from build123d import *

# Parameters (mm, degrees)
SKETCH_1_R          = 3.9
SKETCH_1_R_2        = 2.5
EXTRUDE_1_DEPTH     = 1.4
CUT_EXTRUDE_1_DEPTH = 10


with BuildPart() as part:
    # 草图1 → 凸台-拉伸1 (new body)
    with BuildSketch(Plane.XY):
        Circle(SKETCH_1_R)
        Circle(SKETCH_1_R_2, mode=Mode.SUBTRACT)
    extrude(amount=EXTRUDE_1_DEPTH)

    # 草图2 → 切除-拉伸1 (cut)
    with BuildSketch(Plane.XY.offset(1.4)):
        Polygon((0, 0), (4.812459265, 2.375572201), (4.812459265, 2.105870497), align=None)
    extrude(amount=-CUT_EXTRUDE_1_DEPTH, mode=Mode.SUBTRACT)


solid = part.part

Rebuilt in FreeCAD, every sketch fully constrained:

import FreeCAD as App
import Part
import Sketcher

V = App.Vector
Q = App.Units.Quantity

doc = App.newDocument("Part")
body = doc.addObject("PartDesign::Body", "Body")

sketch1 = body.newObject("Sketcher::SketchObject", "Sketch")
sketch1.AttachmentSupport = (doc.getObject("XY_Plane"), [""])
sketch1.MapMode = "FlatFace"
sketch1.addGeometry([
    Part.Circle(V(0, 0, 0), V(0, 0, 1), 3.9),
    Part.Circle(V(0, 0, 0), V(0, 0, 1), 2.5),
], False)
sketch1.addConstraint([
    Sketcher.Constraint("Coincident", 0, 3, -1, 1),
    Sketcher.Constraint("Coincident", 1, 3, -1, 1),
    Sketcher.Constraint("Diameter", 1, Q("5 mm")),
    Sketcher.Constraint("Diameter", 0, Q("7.8 mm")),
])
pad1 = body.newObject("PartDesign::Pad", "Pad")
pad1.Profile = sketch1
pad1.Length = 1.4

sketch2 = body.newObject("Sketcher::SketchObject", "Sketch001")
sketch2.AttachmentSupport = (doc.getObject("XY_Plane"), [""])
sketch2.MapMode = "FlatFace"
sketch2.AttachmentOffset = App.Placement(V(0, 0, 1.4), App.Rotation())
sketch2.addGeometry([
    Part.LineSegment(V(4.812459, 2.375572, 0), V(0, 0, 0)),
    Part.LineSegment(V(0, 0, 0), V(4.812459, 2.10587, 0)),
    Part.LineSegment(V(4.812459, 2.10587, 0), V(4.812459, 2.375572, 0)),
], False)
sketch2.addConstraint([
    Sketcher.Constraint("Coincident", 0, 2, 1, 1),
    Sketcher.Constraint("Coincident", 1, 2, 2, 1),
    Sketcher.Constraint("Coincident", 2, 2, 0, 1),
    Sketcher.Constraint("Vertical", 2),
    Sketcher.Constraint("Coincident", 0, 2, -1, 1),
    Sketcher.Constraint("DistanceY", 2, 1, 2, 2, Q("0.269702 mm")),
    Sketcher.Constraint("DistanceX", -1, 1, 1, 2, Q("4.812459 mm")),
    Sketcher.Constraint("DistanceY", -1, 1, 1, 2, Q("2.10587 mm")),
])
pocket1 = body.newObject("PartDesign::Pocket", "Pocket")
pocket1.Profile = sketch2
pocket1.Length = 10

doc.recompute()
